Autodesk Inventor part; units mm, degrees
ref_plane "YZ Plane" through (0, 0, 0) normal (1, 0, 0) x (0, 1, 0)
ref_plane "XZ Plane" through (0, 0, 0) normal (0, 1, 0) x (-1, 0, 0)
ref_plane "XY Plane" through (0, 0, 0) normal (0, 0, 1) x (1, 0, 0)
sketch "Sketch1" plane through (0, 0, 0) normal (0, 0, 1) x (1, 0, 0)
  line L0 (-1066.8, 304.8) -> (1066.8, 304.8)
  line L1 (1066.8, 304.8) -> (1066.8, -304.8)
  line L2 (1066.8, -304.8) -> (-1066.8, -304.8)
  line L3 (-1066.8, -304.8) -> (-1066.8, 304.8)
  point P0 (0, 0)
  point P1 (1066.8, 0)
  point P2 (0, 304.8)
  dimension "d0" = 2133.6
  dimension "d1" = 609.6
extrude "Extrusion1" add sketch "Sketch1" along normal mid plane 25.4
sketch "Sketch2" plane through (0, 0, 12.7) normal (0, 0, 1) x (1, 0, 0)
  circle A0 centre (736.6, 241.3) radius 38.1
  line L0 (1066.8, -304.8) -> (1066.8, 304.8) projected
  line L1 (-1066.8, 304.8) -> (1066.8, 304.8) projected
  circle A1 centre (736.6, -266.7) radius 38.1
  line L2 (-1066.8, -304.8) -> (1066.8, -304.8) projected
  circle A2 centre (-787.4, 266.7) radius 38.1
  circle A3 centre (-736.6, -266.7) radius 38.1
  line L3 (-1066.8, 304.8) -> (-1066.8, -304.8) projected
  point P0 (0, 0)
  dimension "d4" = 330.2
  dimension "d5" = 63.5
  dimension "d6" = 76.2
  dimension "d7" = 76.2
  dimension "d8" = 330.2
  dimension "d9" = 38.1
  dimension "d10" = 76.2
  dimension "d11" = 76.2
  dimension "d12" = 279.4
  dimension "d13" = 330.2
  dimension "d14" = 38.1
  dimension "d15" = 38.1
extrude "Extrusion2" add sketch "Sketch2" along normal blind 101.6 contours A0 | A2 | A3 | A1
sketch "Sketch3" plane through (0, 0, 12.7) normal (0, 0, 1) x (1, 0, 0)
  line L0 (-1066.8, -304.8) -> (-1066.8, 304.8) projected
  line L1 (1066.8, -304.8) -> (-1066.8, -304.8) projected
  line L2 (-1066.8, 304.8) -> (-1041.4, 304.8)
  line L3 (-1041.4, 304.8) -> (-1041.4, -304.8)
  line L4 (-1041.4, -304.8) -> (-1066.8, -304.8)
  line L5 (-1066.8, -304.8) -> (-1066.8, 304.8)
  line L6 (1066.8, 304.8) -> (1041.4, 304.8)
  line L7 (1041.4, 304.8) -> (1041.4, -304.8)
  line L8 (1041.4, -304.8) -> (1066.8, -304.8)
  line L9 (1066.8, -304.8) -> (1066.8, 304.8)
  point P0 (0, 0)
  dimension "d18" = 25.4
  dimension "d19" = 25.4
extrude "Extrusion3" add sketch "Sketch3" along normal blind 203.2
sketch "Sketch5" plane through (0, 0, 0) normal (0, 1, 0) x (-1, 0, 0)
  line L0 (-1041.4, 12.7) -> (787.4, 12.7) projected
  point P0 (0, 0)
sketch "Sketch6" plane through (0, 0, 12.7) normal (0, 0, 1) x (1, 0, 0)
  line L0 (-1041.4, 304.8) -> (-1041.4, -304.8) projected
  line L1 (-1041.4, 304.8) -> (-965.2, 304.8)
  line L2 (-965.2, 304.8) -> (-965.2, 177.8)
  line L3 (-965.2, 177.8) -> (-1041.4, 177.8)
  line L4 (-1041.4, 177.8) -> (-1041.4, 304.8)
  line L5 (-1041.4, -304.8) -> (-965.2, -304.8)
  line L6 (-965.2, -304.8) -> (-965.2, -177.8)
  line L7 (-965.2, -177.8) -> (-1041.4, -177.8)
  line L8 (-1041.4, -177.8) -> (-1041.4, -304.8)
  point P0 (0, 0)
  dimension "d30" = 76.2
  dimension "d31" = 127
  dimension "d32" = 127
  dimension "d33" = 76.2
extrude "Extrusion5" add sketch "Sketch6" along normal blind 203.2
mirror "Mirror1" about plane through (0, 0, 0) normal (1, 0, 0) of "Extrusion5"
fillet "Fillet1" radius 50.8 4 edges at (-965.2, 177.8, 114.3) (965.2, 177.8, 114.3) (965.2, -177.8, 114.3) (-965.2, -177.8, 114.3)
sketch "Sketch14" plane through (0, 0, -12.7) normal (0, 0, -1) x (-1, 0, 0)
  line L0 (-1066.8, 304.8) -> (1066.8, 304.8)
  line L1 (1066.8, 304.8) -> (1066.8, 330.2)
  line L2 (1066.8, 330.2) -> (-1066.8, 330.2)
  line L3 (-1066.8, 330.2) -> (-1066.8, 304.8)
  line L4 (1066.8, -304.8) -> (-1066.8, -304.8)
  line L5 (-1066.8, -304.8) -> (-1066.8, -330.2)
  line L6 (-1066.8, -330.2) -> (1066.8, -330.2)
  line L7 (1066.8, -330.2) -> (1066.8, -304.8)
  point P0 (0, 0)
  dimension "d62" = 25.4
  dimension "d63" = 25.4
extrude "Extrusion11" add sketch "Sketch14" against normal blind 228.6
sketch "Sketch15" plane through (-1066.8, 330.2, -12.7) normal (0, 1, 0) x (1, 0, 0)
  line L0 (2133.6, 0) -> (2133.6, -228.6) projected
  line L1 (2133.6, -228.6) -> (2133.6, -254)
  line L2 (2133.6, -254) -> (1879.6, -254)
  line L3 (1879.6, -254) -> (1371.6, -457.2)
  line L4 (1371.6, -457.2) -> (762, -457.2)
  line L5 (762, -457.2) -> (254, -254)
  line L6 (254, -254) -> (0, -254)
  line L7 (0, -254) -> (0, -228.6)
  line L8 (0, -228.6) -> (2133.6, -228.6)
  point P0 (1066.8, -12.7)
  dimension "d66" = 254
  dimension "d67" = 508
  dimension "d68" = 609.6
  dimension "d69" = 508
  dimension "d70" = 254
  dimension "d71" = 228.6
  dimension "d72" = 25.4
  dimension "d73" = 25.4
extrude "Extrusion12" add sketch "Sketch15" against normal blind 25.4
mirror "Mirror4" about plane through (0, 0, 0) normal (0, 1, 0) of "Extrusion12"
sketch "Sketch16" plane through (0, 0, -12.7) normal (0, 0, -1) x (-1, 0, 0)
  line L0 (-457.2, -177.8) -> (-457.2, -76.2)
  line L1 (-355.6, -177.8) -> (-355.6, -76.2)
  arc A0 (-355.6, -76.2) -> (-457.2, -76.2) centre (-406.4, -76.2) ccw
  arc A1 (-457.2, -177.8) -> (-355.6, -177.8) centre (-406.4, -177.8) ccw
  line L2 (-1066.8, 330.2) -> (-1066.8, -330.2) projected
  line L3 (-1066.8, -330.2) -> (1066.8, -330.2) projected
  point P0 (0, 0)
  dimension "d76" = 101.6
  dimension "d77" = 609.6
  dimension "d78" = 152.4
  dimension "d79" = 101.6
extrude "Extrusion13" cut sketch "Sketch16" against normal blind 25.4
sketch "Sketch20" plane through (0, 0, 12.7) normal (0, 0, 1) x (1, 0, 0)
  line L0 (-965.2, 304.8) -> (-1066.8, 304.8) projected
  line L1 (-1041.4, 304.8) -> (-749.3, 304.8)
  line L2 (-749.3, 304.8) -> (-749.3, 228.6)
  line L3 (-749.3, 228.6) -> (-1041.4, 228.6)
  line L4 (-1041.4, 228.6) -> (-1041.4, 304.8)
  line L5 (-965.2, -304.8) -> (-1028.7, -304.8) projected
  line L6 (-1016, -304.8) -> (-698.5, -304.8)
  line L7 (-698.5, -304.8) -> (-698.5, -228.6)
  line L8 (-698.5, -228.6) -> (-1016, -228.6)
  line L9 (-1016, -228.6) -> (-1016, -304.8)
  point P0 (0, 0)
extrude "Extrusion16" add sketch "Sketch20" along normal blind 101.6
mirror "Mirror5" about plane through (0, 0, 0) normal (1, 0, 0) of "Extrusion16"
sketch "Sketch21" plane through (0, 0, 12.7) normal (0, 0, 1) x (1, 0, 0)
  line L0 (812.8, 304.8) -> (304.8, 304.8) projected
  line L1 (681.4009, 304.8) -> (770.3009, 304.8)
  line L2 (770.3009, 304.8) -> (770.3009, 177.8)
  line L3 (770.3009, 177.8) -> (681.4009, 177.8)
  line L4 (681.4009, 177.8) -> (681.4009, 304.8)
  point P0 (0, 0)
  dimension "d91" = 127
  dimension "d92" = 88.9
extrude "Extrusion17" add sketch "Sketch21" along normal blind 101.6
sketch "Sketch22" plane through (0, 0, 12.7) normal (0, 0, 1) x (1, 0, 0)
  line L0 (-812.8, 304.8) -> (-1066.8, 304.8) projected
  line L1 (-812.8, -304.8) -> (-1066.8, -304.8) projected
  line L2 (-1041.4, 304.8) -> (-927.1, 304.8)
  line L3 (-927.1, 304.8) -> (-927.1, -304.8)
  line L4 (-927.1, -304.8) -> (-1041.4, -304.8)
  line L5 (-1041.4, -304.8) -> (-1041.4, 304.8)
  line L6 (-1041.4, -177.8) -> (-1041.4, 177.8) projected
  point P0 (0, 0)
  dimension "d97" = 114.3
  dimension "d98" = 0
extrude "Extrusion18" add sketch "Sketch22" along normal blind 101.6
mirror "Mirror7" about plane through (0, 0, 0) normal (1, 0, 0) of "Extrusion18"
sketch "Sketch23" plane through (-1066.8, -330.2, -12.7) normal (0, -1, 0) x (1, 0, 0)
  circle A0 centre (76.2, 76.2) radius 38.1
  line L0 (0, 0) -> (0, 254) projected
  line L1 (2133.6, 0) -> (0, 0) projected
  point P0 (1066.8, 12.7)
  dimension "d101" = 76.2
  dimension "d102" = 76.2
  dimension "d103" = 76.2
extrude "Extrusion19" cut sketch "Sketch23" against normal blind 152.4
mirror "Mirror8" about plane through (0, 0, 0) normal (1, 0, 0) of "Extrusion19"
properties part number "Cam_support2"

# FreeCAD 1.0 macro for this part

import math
import FreeCAD as App
import Part
import Sketcher
Q = App.Units.Quantity


def edges_at(feature, points):
    """Names of the edges that pass closest to the given points."""
    edges = feature.Shape.Edges
    near = lambda p: min(range(len(edges)), key=lambda i: edges[i].distToShape(Part.Vertex(*p))[0])
    return sorted({f"Edge{near(p) + 1}" for p in points})

doc = App.newDocument("Part")
body = doc.addObject("PartDesign::Body", "Body")

# Sketch on XY plane
sketch1 = body.newObject("Sketcher::SketchObject", "Sketch")
sketch1.AttachmentSupport = (doc.getObject("XY_Plane"), [""])
sketch1.MapMode = "FlatFace"
sketch1.addGeometry(Part.LineSegment(App.Vector(1067, 305, 0), App.Vector(-1067, 305, 0)), False)
sketch1.addGeometry(Part.LineSegment(App.Vector(-1067, 305, 0), App.Vector(-1067, -305, 0)), False)
sketch1.addGeometry(Part.LineSegment(App.Vector(-1067, -305, 0), App.Vector(1067, -305, 0)), False)
sketch1.addGeometry(Part.LineSegment(App.Vector(1067, -305, 0), App.Vector(1067, 305, 0)), False)
sketch1.addConstraint(Sketcher.Constraint("Coincident", 0, 2, 1, 1))
sketch1.addConstraint(Sketcher.Constraint("Coincident", 1, 2, 2, 1))
sketch1.addConstraint(Sketcher.Constraint("Coincident", 2, 2, 3, 1))
sketch1.addConstraint(Sketcher.Constraint("Coincident", 3, 2, 0, 1))
sketch1.addConstraint(Sketcher.Constraint("Horizontal", 0))
sketch1.addConstraint(Sketcher.Constraint("Vertical", 1))
sketch1.addConstraint(Sketcher.Constraint("Horizontal", 2))
sketch1.addConstraint(Sketcher.Constraint("Vertical", 3))
sketch1.addConstraint(Sketcher.Constraint("Symmetric", 0, 2, 2, 2, -1, 1))
sketch1.addConstraint(Sketcher.Constraint("DistanceX", 0, 2, 0, 1, Q("84 in")))
sketch1.addConstraint(Sketcher.Constraint("DistanceY", 1, 2, 1, 1, Q("24 in")))
pad1 = body.newObject("PartDesign::Pad", "Pad")
pad1.Profile = sketch1
pad1.Length = Q("1 in")
pad1.Midplane = True

# Sketch on XY plane
sketch2 = body.newObject("Sketcher::SketchObject", "Sketch001")
sketch2.AttachmentSupport = (doc.getObject("XY_Plane"), [""])
sketch2.MapMode = "FlatFace"
sketch2.AttachmentOffset = App.Placement(App.Vector(0, 0, 0.5 * 25.4), App.Rotation())
sketch2.addGeometry(Part.Circle(App.Vector(737, 241, 0), App.Vector(0, 0, 1), 38), False)
sketch2.addGeometry(Part.Circle(App.Vector(-787, 267, 0), App.Vector(0, 0, 1), 38), False)
sketch2.addGeometry(Part.Circle(App.Vector(-737, -267, 0), App.Vector(0, 0, 1), 38), False)
sketch2.addGeometry(Part.Circle(App.Vector(737, -267, 0), App.Vector(0, 0, 1), 38), False)
sketch2.addConstraint(Sketcher.Constraint("Equal", 0, 1))
sketch2.addConstraint(Sketcher.Constraint("Equal", 1, 2))
sketch2.addConstraint(Sketcher.Constraint("Equal", 2, 3))
sketch2.addConstraint(Sketcher.Constraint("Symmetric", 2, 3, 3, 3, -2))
sketch2.addConstraint(Sketcher.Constraint("Vertical", 0, 3, 3, 3))
sketch2.addConstraint(Sketcher.Constraint("Diameter", 0, Q("3 in")))
sketch2.addConstraint(Sketcher.Constraint("DistanceX", -1, 1, 0, 3, Q("29 in")))
sketch2.addConstraint(Sketcher.Constraint("DistanceX", 1, 3, -1, 1, Q("31 in")))
sketch2.addConstraint(Sketcher.Constraint("DistanceY", 0, 3, 1, 3, Q("1 in")))
sketch2.addConstraint(Sketcher.Constraint("DistanceY", 2, 3, 1, 3, Q("21 in")))
sketch2.addConstraint(Sketcher.Constraint("DistanceY", -1, 1, 0, 3, Q("9.5 in")))
pad2 = body.newObject("PartDesign::Pad", "Pad001")
pad2.Profile = sketch2
pad2.Length = Q("4 in")

# Sketch on XY plane
sketch3 = body.newObject("Sketcher::SketchObject", "Sketch002")
sketch3.AttachmentSupport = (doc.getObject("XY_Plane"), [""])
sketch3.MapMode = "FlatFace"
sketch3.AttachmentOffset = App.Placement(App.Vector(0, 0, 0.5 * 25.4), App.Rotation())
sketch3.addGeometry(Part.LineSegment(App.Vector(1041, 305, 0), App.Vector(1041, -305, 0)), False)
sketch3.addGeometry(Part.LineSegment(App.Vector(1041, -305, 0), App.Vector(1067, -305, 0)), False)
sketch3.addGeometry(Part.LineSegment(App.Vector(1067, -305, 0), App.Vector(1067, 305, 0)), False)
sketch3.addGeometry(Part.LineSegment(App.Vector(1067, 305, 0), App.Vector(1041, 305, 0)), False)
sketch3.addGeometry(Part.LineSegment(App.Vector(-1067, 305, 0), App.Vector(-1067, -305, 0)), False)
sketch3.addGeometry(Part.LineSegment(App.Vector(-1067, -305, 0), App.Vector(-1041, -305, 0)), False)
sketch3.addGeometry(Part.LineSegment(App.Vector(-1041, -305, 0), App.Vector(-1041, 305, 0)), False)
sketch3.addGeometry(Part.LineSegment(App.Vector(-1041, 305, 0), App.Vector(-1067, 305, 0)), False)
sketch3.addConstraint(Sketcher.Constraint("Coincident", 0, 2, 1, 1))
sketch3.addConstraint(Sketcher.Constraint("Coincident", 1, 2, 2, 1))
sketch3.addConstraint(Sketcher.Constraint("Coincident", 2, 2, 3, 1))
sketch3.addConstraint(Sketcher.Constraint("Coincident", 3, 2, 0, 1))
sketch3.addConstraint(Sketcher.Constraint("Coincident", 4, 2, 5, 1))
sketch3.addConstraint(Sketcher.Constraint("Coincident", 5, 2, 6, 1))
sketch3.addConstraint(Sketcher.Constraint("Coincident", 6, 2, 7, 1))
sketch3.addConstraint(Sketcher.Constraint("Coincident", 7, 2, 4, 1))
sketch3.addConstraint(Sketcher.Constraint("Vertical", 0))
sketch3.addConstraint(Sketcher.Constraint("Horizontal", 1))
sketch3.addConstraint(Sketcher.Constraint("Vertical", 2))
sketch3.addConstraint(Sketcher.Constraint("Horizontal", 3))
sketch3.addConstraint(Sketcher.Constraint("Vertical", 4))
sketch3.addConstraint(Sketcher.Constraint("Horizontal", 5))
sketch3.addConstraint(Sketcher.Constraint("Vertical", 6))
sketch3.addConstraint(Sketcher.Constraint("Horizontal", 7))
sketch3.addConstraint(Sketcher.Constraint("Symmetric", 2, 2, 4, 2, -1, 1))
sketch3.addConstraint(Sketcher.Constraint("Symmetric", 0, 2, 6, 2, -1, 1))
sketch3.addConstraint(Sketcher.Constraint("Horizontal", 1, 2, 4, 2))
sketch3.addConstraint(Sketcher.Constraint("DistanceX", 1, 1, 1, 2, Q("1 in")))
sketch3.addConstraint(Sketcher.Constraint("DistanceY", 0, 2, 0, 1, Q("24 in")))
sketch3.addConstraint(Sketcher.Constraint("DistanceX", -1, 1, 0, 2, Q("41 in")))
pad3 = body.newObject("PartDesign::Pad", "Pad002")
pad3.Profile = sketch3
pad3.Length = Q("8 in")

# Sketch on XY plane
sketch4 = body.newObject("Sketcher::SketchObject", "Sketch003")
sketch4.AttachmentSupport = (doc.getObject("XY_Plane"), [""])
sketch4.MapMode = "FlatFace"
sketch4.AttachmentOffset = App.Placement(App.Vector(0, 0, 0.5 * 25.4), App.Rotation())
sketch4.addGeometry(Part.LineSegment(App.Vector(-965, 305, 0), App.Vector(-1041, 305, 0)), False)
sketch4.addGeometry(Part.LineSegment(App.Vector(-1041, 305, 0), App.Vector(-1041, 178, 0)), False)
sketch4.addGeometry(Part.LineSegment(App.Vector(-1041, 178, 0), App.Vector(-965, 178, 0)), False)
sketch4.addGeometry(Part.LineSegment(App.Vector(-965, 178, 0), App.Vector(-965, 305, 0)), False)
sketch4.addGeometry(Part.LineSegment(App.Vector(-965, -178, 0), App.Vector(-1041, -178, 0)), False)
sketch4.addGeometry(Part.LineSegment(App.Vector(-1041, -178, 0), App.Vector(-1041, -305, 0)), False)
sketch4.addGeometry(Part.LineSegment(App.Vector(-1041, -305, 0), App.Vector(-965, -305, 0)), False)
sketch4.addGeometry(Part.LineSegment(App.Vector(-965, -305, 0), App.Vector(-965, -178, 0)), False)
sketch4.addConstraint(Sketcher.Constraint("Coincident", 0, 2, 1, 1))
sketch4.addConstraint(Sketcher.Constraint("Coincident", 1, 2, 2, 1))
sketch4.addConstraint(Sketcher.Constraint("Coincident", 2, 2, 3, 1))
sketch4.addConstraint(Sketcher.Constraint("Coincident", 3, 2, 0, 1))
sketch4.addConstraint(Sketcher.Constraint("Coincident", 4, 2, 5, 1))
sketch4.addConstraint(Sketcher.Constraint("Coincident", 5, 2, 6, 1))
sketch4.addConstraint(Sketcher.Constraint("Coincident", 6, 2, 7, 1))
sketch4.addConstraint(Sketcher.Constraint("Coincident", 7, 2, 4, 1))
sketch4.addConstraint(Sketcher.Constraint("Horizontal", 0))
sketch4.addConstraint(Sketcher.Constraint("Vertical", 1))
sketch4.addConstraint(Sketcher.Constraint("Horizontal", 2))
sketch4.addConstraint(Sketcher.Constraint("Vertical", 3))
sketch4.addConstraint(Sketcher.Constraint("Horizontal", 4))
sketch4.addConstraint(Sketcher.Constraint("Vertical", 5))
sketch4.addConstraint(Sketcher.Constraint("Horizontal", 6))
sketch4.addConstraint(Sketcher.Constraint("Vertical", 7))
sketch4.addConstraint(Sketcher.Constraint("Symmetric", 1, 2, 4, 2, -1))
sketch4.addConstraint(Sketcher.Constraint("Symmetric", 3, 2, 6, 2, -1))
sketch4.addConstraint(Sketcher.Constraint("DistanceX", 0, 2, 0, 1, Q("3 in")))
sketch4.addConstraint(Sketcher.Constraint("DistanceY", 1, 2, 1, 1, Q("5 in")))
sketch4.addConstraint(Sketcher.Constraint("DistanceX", 0, 2, -1, 1, Q("41 in")))
sketch4.addConstraint(Sketcher.Constraint("DistanceY", -1, 1, 0, 2, Q("12 in")))
pad4 = body.newObject("PartDesign::Pad", "Pad003")
pad4.Profile = sketch4
pad4.Length = Q("8 in")
doc.recompute()

mirrored = body.newObject("PartDesign::Mirrored", "Mirrored")
mirrored.Originals = [pad4]
mirrored.MirrorPlane = (doc.getObject("YZ_Plane"), [""])
body.Tip = mirrored
doc.recompute()

fillet = body.newObject("PartDesign::Fillet", "Fillet")
fillet.Base = (mirrored, edges_at(mirrored, [
    (-965.2, 177.8, 114.3),
    (965.2, 177.8, 114.3),
    (965.2, -177.8, 114.3),
    (-965.2, -177.8, 114.3),
]))
fillet.Radius = Q("2 in")

# Sketch on XY plane
sketch5 = body.newObject("Sketcher::SketchObject", "Sketch004")
sketch5.AttachmentSupport = (doc.getObject("XY_Plane"), [""])
sketch5.MapMode = "FlatFace"
sketch5.AttachmentOffset = App.Placement(App.Vector(0, 0, -0.5 * 25.4), App.Rotation())
sketch5.addGeometry(Part.LineSegment(App.Vector(1067, 330, 0), App.Vector(1067, 305, 0)), False)
sketch5.addGeometry(Part.LineSegment(App.Vector(1067, 305, 0), App.Vector(-1067, 305, 0)), False)
sketch5.addGeometry(Part.LineSegment(App.Vector(-1067, 305, 0), App.Vector(-1067, 330, 0)), False)
sketch5.addGeometry(Part.LineSegment(App.Vector(-1067, 330, 0), App.Vector(1067, 330, 0)), False)
sketch5.addGeometry(Part.LineSegment(App.Vector(-1067, -330, 0), App.Vector(-1067, -305, 0)), False)
sketch5.addGeometry(Part.LineSegment(App.Vector(-1067, -305, 0), App.Vector(1067, -305, 0)), False)
sketch5.addGeometry(Part.LineSegment(App.Vector(1067, -305, 0), App.Vector(1067, -330, 0)), False)
sketch5.addGeometry(Part.LineSegment(App.Vector(1067, -330, 0), App.Vector(-1067, -330, 0)), False)
sketch5.addConstraint(Sketcher.Constraint("Coincident", 0, 2, 1, 1))
sketch5.addConstraint(Sketcher.Constraint("Coincident", 1, 2, 2, 1))
sketch5.addConstraint(Sketcher.Constraint("Coincident", 2, 2, 3, 1))
sketch5.addConstraint(Sketcher.Constraint("Coincident", 3, 2, 0, 1))
sketch5.addConstraint(Sketcher.Constraint("Coincident", 4, 2, 5, 1))
sketch5.addConstraint(Sketcher.Constraint("Coincident", 5, 2, 6, 1))
sketch5.addConstraint(Sketcher.Constraint("Coincident", 6, 2, 7, 1))
sketch5.addConstraint(Sketcher.Constraint("Coincident", 7, 2, 4, 1))
sketch5.addConstraint(Sketcher.Constraint("Vertical", 0))
sketch5.addConstraint(Sketcher.Constraint("Horizontal", 1))
sketch5.addConstraint(Sketcher.Constraint("Vertical", 2))
sketch5.addConstraint(Sketcher.Constraint("Horizontal", 3))
sketch5.addConstraint(Sketcher.Constraint("Vertical", 4))
sketch5.addConstraint(Sketcher.Constraint("Horizontal", 5))
sketch5.addConstraint(Sketcher.Constraint("Vertical", 6))
sketch5.addConstraint(Sketcher.Constraint("Horizontal", 7))
sketch5.addConstraint(Sketcher.Constraint("Symmetric", 0, 2, 4, 2, -1, 1))
sketch5.addConstraint(Sketcher.Constraint("Symmetric", 2, 2, 6, 2, -1, 1))
sketch5.addConstraint(Sketcher.Constraint("Vertical", 2, 2, 4, 2))
sketch5.addConstraint(Sketcher.Constraint("DistanceY", 0, 2, 0, 1, Q("1 in")))
sketch5.addConstraint(Sketcher.Constraint("DistanceX", 1, 2, 1, 1, Q("84 in")))
sketch5.addConstraint(Sketcher.Constraint("DistanceY", -1, 1, 0, 2, Q("12 in")))
pad5 = body.newObject("PartDesign::Pad", "Pad004")
pad5.Profile = sketch5
pad5.Length = Q("9 in")

# Sketch on XZ plane
sketch6 = body.newObject("Sketcher::SketchObject", "Sketch005")
sketch6.AttachmentSupport = (doc.getObject("XZ_Plane"), [""])
sketch6.MapMode = "FlatFace"
sketch6.AttachmentOffset = App.Placement(App.Vector(0, 0, -13 * 25.4), App.Rotation())
sketch6.addGeometry(Part.LineSegment(App.Vector(1067, 241, 0), App.Vector(1067, 216, 0)), False)
sketch6.addGeometry(Part.LineSegment(App.Vector(1067, 216, 0), App.Vector(-1067, 216, 0)), False)
sketch6.addGeometry(Part.LineSegment(App.Vector(-1067, 216, 0), App.Vector(-1067, 241, 0)), False)
sketch6.addGeometry(Part.LineSegment(App.Vector(-1067, 241, 0), App.Vector(-813, 241, 0)), False)
sketch6.addGeometry(Part.LineSegment(App.Vector(-813, 241, 0), App.Vector(-305, 444, 0)), False)
sketch6.addGeometry(Part.LineSegment(App.Vector(-305, 444, 0), App.Vector(305, 444, 0)), False)
sketch6.addGeometry(Part.LineSegment(App.Vector(305, 444, 0), App.Vector(813, 241, 0)), False)
sketch6.addGeometry(Part.LineSegment(App.Vector(813, 241, 0), App.Vector(1067, 241, 0)), False)
sketch6.addConstraint(Sketcher.Constraint("Coincident", 0, 2, 1, 1))
sketch6.addConstraint(Sketcher.Constraint("Coincident", 1, 2, 2, 1))
sketch6.addConstraint(Sketcher.Constraint("Coincident", 2, 2, 3, 1))
sketch6.addConstraint(Sketcher.Constraint("Coincident", 3, 2, 4, 1))
sketch6.addConstraint(Sketcher.Constraint("Coincident", 4, 2, 5, 1))
sketch6.addConstraint(Sketcher.Constraint("Coincident", 5, 2, 6, 1))
sketch6.addConstraint(Sketcher.Constraint("Coincident", 6, 2, 7, 1))
sketch6.addConstraint(Sketcher.Constraint("Coincident", 7, 2, 0, 1))
sketch6.addConstraint(Sketcher.Constraint("Vertical", 0))
sketch6.addConstraint(Sketcher.Constraint("Horizontal", 1))
sketch6.addConstraint(Sketcher.Constraint("Vertical", 2))
sketch6.addConstraint(Sketcher.Constraint("Horizontal", 3))
sketch6.addConstraint(Sketcher.Constraint("Horizontal", 5))
sketch6.addConstraint(Sketcher.Constraint("Horizontal", 7))
sketch6.addConstraint(Sketcher.Constraint("Symmetric", 3, 2, 6, 2, -2))
sketch6.addConstraint(Sketcher.Constraint("Equal", 3, 7))
sketch6.addConstraint(Sketcher.Constraint("Equal", 4, 6))
sketch6.addConstraint(Sketcher.Constraint("DistanceX", 3, 1, 3, 2, Q("10 in")))
sketch6.addConstraint(Sketcher.Constraint("DistanceX", 5, 1, 5, 2, Q("24 in")))
sketch6.addConstraint(Sketcher.Constraint("DistanceY", 0, 2, 0, 1, Q("1 in")))
sketch6.addConstraint(Sketcher.Constraint("DistanceX", 3, 2, 4, 2, Q("20 in")))
sketch6.addConstraint(Sketcher.Constraint("DistanceY", 1, 2, 4, 2, Q("9 in")))
sketch6.addConstraint(Sketcher.Constraint("DistanceY", -1, 1, 0, 2, Q("8.5 in")))
pad6 = body.newObject("PartDesign::Pad", "Pad005")
pad6.Profile = sketch6
pad6.Length = Q("1 in")
doc.recompute()

mirrored2 = body.newObject("PartDesign::Mirrored", "Mirrored001")
mirrored2.Originals = [pad6]
mirrored2.MirrorPlane = (doc.getObject("XZ_Plane"), [""])
body.Tip = mirrored2

# Sketch on XY plane
sketch7 = body.newObject("Sketcher::SketchObject", "Sketch006")
sketch7.AttachmentSupport = (doc.getObject("XY_Plane"), [""])
sketch7.MapMode = "FlatFace"
sketch7.AttachmentOffset = App.Placement(App.Vector(0, 0, -0.5 * 25.4), App.Rotation())
sketch7.addGeometry(Part.LineSegment(App.Vector(457, -76, 0), App.Vector(457, -178, 0)), False)
sketch7.addGeometry(Part.ArcOfCircle(Part.Circle(App.Vector(406, -178, 0), App.Vector(0, 0, 1), 51), math.radians(180), math.radians(360)), False)
sketch7.addGeometry(Part.LineSegment(App.Vector(356, -178, 0), App.Vector(356, -76, 0)), False)
sketch7.addGeometry(Part.ArcOfCircle(Part.Circle(App.Vector(406, -76, 0), App.Vector(0, 0, 1), 51), math.radians(0), math.radians(180)), False)
sketch7.addConstraint(Sketcher.Constraint("Tangent", 0, 2, 1, 2))
sketch7.addConstraint(Sketcher.Constraint("Tangent", 1, 1, 2, 1))
sketch7.addConstraint(Sketcher.Constraint("Tangent", 2, 2, 3, 2))
sketch7.addConstraint(Sketcher.Constraint("Tangent", 3, 1, 0, 1))
sketch7.addConstraint(Sketcher.Constraint("Vertical", 0))
sketch7.addConstraint(Sketcher.Constraint("Vertical", 2))
sketch7.addConstraint(Sketcher.Constraint("Radius", 1, Q("2 in")))
sketch7.addConstraint(Sketcher.Constraint("DistanceY", 0, 2, 0, 1, Q("4 in")))
sketch7.addConstraint(Sketcher.Constraint("DistanceX", -1, 1, 1, 3, Q("16 in")))
sketch7.addConstraint(Sketcher.Constraint("DistanceY", 1, 3, -1, 1, Q("7 in")))
pocket1 = body.newObject("PartDesign::Pocket", "Pocket")
pocket1.Profile = sketch7
pocket1.Length = Q("1 in")
pocket1.Reversed = True

# Sketch on XY plane
sketch8 = body.newObject("Sketcher::SketchObject", "Sketch007")
sketch8.AttachmentSupport = (doc.getObject("XY_Plane"), [""])
sketch8.MapMode = "FlatFace"
sketch8.AttachmentOffset = App.Placement(App.Vector(0, 0, 0.5 * 25.4), App.Rotation())
sketch8.addGeometry(Part.LineSegment(App.Vector(-749, 305, 0), App.Vector(-1041, 305, 0)), False)
sketch8.addGeometry(Part.LineSegment(App.Vector(-1041, 305, 0), App.Vector(-1041, 229, 0)), False)
sketch8.addGeometry(Part.LineSegment(App.Vector(-1041, 229, 0), App.Vector(-749, 229, 0)), False)
sketch8.addGeometry(Part.LineSegment(App.Vector(-749, 229, 0), App.Vector(-749, 305, 0)), False)
sketch8.addGeometry(Part.LineSegment(App.Vector(-1016, -305, 0), App.Vector(-698, -305, 0)), False)
sketch8.addGeometry(Part.LineSegment(App.Vector(-698, -305, 0), App.Vector(-698, -229, 0)), False)
sketch8.addGeometry(Part.LineSegment(App.Vector(-698, -229, 0), App.Vector(-1016, -229, 0)), False)
sketch8.addGeometry(Part.LineSegment(App.Vector(-1016, -229, 0), App.Vector(-1016, -305, 0)), False)
sketch8.addConstraint(Sketcher.Constraint("Coincident", 0, 2, 1, 1))
sketch8.addConstraint(Sketcher.Constraint("Coincident", 1, 2, 2, 1))
sketch8.addConstraint(Sketcher.Constraint("Coincident", 2, 2, 3, 1))
sketch8.addConstraint(Sketcher.Constraint("Coincident", 3, 2, 0, 1))
sketch8.addConstraint(Sketcher.Constraint("Coincident", 4, 2, 5, 1))
sketch8.addConstraint(Sketcher.Constraint("Coincident", 5, 2, 6, 1))
sketch8.addConstraint(Sketcher.Constraint("Coincident", 6, 2, 7, 1))
sketch8.addConstraint(Sketcher.Constraint("Coincident", 7, 2, 4, 1))
sketch8.addConstraint(Sketcher.Constraint("Horizontal", 0))
sketch8.addConstraint(Sketcher.Constraint("Vertical", 1))
sketch8.addConstraint(Sketcher.Constraint("Horizontal", 2))
sketch8.addConstraint(Sketcher.Constraint("Vertical", 3))
sketch8.addConstraint(Sketcher.Constraint("Horizontal", 4))
sketch8.addConstraint(Sketcher.Constraint("Vertical", 5))
sketch8.addConstraint(Sketcher.Constraint("Horizontal", 6))
sketch8.addConstraint(Sketcher.Constraint("Vertical", 7))
sketch8.addConstraint(Sketcher.Constraint("Equal", 3, 5))
sketch8.addConstraint(Sketcher.Constraint("DistanceY", 1, 2, 1, 1, Q("3 in")))
sketch8.addConstraint(Sketcher.Constraint("DistanceX", 0, 2, 0, 1, Q("11.5 in")))
sketch8.addConstraint(Sketcher.Constraint("DistanceX", 4, 1, 4, 2, Q("12.5 in")))
sketch8.addConstraint(Sketcher.Constraint("DistanceX", 0, 2, -1, 1, Q("41 in")))
sketch8.addConstraint(Sketcher.Constraint("DistanceY", -1, 1, 0, 2, Q("12 in")))
sketch8.addConstraint(Sketcher.Constraint("DistanceY", 4, 2, -1, 1, Q("12 in")))
sketch8.addConstraint(Sketcher.Constraint("DistanceX", 6, 2, -1, 1, Q("40 in")))
pad7 = body.newObject("PartDesign::Pad", "Pad006")
pad7.Profile = sketch8
pad7.Length = Q("4 in")
doc.recompute()

mirrored3 = body.newObject("PartDesign::Mirrored", "Mirrored002")
mirrored3.Originals = [pad7]
mirrored3.MirrorPlane = (doc.getObject("YZ_Plane"), [""])
body.Tip = mirrored3

# Sketch on XY plane
sketch9 = body.newObject("Sketcher::SketchObject", "Sketch008")
sketch9.AttachmentSupport = (doc.getObject("XY_Plane"), [""])
sketch9.MapMode = "FlatFace"
sketch9.AttachmentOffset = App.Placement(App.Vector(0, 0, 0.5 * 25.4), App.Rotation())
sketch9.addGeometry(Part.LineSegment(App.Vector(770, 178, 0), App.Vector(770, 305, 0)), False)
sketch9.addGeometry(Part.LineSegment(App.Vector(770, 305, 0), App.Vector(681, 305, 0)), False)
sketch9.addGeometry(Part.LineSegment(App.Vector(681, 305, 0), App.Vector(681, 178, 0)), False)
sketch9.addGeometry(Part.LineSegment(App.Vector(681, 178, 0), App.Vector(770, 178, 0)), False)
sketch9.addConstraint(Sketcher.Constraint("Coincident", 0, 2, 1, 1))
sketch9.addConstraint(Sketcher.Constraint("Coincident", 1, 2, 2, 1))
sketch9.addConstraint(Sketcher.Constraint("Coincident", 2, 2, 3, 1))
sketch9.addConstraint(Sketcher.Constraint("Coincident", 3, 2, 0, 1))
sketch9.addConstraint(Sketcher.Constraint("Vertical", 0))
sketch9.addConstraint(Sketcher.Constraint("Horizontal", 1))
sketch9.addConstraint(Sketcher.Constraint("Vertical", 2))
sketch9.addConstraint(Sketcher.Constraint("Horizontal", 3))
sketch9.addConstraint(Sketcher.Constraint("DistanceY", 0, 1, 0, 2, Q("5 in")))
sketch9.addConstraint(Sketcher.Constraint("DistanceX", 1, 2, 1, 1, Q("3.5 in")))
sketch9.addConstraint(Sketcher.Constraint("DistanceY", -1, 1, 0, 2, Q("12 in")))
sketch9.addConstraint(Sketcher.Constraint("DistanceX", -1, 1, 0, 2, Q("30.3268 in")))
pad8 = body.newObject("PartDesign::Pad", "Pad007")
pad8.Profile = sketch9
pad8.Length = Q("4 in")

# Sketch on XY plane
sketch10 = body.newObject("Sketcher::SketchObject", "Sketch009")
sketch10.AttachmentSupport = (doc.getObject("XY_Plane"), [""])
sketch10.MapMode = "FlatFace"
sketch10.AttachmentOffset = App.Placement(App.Vector(0, 0, 0.5 * 25.4), App.Rotation())
sketch10.addGeometry(Part.LineSegment(App.Vector(-927, -305, 0), App.Vector(-927, 305, 0)), False)
sketch10.addGeometry(Part.LineSegment(App.Vector(-927, 305, 0), App.Vector(-1041, 305, 0)), False)
sketch10.addGeometry(Part.LineSegment(App.Vector(-1041, 305, 0), App.Vector(-1041, -305, 0)), False)
sketch10.addGeometry(Part.LineSegment(App.Vector(-1041, -305, 0), App.Vector(-927, -305, 0)), False)
sketch10.addConstraint(Sketcher.Constraint("Coincident", 0, 2, 1, 1))
sketch10.addConstraint(Sketcher.Constraint("Coincident", 1, 2, 2, 1))
sketch10.addConstraint(Sketcher.Constraint("Coincident", 2, 2, 3, 1))
sketch10.addConstraint(Sketcher.Constraint("Coincident", 3, 2, 0, 1))
sketch10.addConstraint(Sketcher.Constraint("Vertical", 0))
sketch10.addConstraint(Sketcher.Constraint("Horizontal", 1))
sketch10.addConstraint(Sketcher.Constraint("Vertical", 2))
sketch10.addConstraint(Sketcher.Constraint("Horizontal", 3))
sketch10.addConstraint(Sketcher.Constraint("DistanceX", 1, 2, 1, 1, Q("4.5 in")))
sketch10.addConstraint(Sketcher.Constraint("DistanceY", 0, 1, 0, 2, Q("24 in")))
sketch10.addConstraint(Sketcher.Constraint("DistanceY", -1, 1, 0, 2, Q("12 in")))
sketch10.addConstraint(Sketcher.Constraint("DistanceX", 1, 2, -1, 1, Q("41 in")))
pad9 = body.newObject("PartDesign::Pad", "Pad008")
pad9.Profile = sketch10
pad9.Length = Q("4 in")
doc.recompute()

mirrored4 = body.newObject("PartDesign::Mirrored", "Mirrored003")
mirrored4.Originals = [pad9]
mirrored4.MirrorPlane = (doc.getObject("YZ_Plane"), [""])
body.Tip = mirrored4

# Sketch on XZ plane
sketch11 = body.newObject("Sketcher::SketchObject", "Sketch010")
sketch11.AttachmentSupport = (doc.getObject("XZ_Plane"), [""])
sketch11.MapMode = "FlatFace"
sketch11.AttachmentOffset = App.Placement(App.Vector(0, 0, 13 * 25.4), App.Rotation())
sketch11.addGeometry(Part.Circle(App.Vector(-991, 64, 0), App.Vector(0, 0, 1), 38), False)
sketch11.addConstraint(Sketcher.Constraint("Diameter", 0, Q("3 in")))
sketch11.addConstraint(Sketcher.Constraint("DistanceX", 0, 3, -1, 1, Q("39 in")))
sketch11.addConstraint(Sketcher.Constraint("DistanceY", -1, 1, 0, 3, Q("2.5 in")))
pocket2 = body.newObject("PartDesign::Pocket", "Pocket001")
pocket2.Profile = sketch11
pocket2.Length = Q("6 in")
doc.recompute()

mirrored5 = body.newObject("PartDesign::Mirrored", "Mirrored004")
mirrored5.Originals = [pocket2]
mirrored5.MirrorPlane = (doc.getObject("YZ_Plane"), [""])
body.Tip = mirrored5

doc.recompute()
